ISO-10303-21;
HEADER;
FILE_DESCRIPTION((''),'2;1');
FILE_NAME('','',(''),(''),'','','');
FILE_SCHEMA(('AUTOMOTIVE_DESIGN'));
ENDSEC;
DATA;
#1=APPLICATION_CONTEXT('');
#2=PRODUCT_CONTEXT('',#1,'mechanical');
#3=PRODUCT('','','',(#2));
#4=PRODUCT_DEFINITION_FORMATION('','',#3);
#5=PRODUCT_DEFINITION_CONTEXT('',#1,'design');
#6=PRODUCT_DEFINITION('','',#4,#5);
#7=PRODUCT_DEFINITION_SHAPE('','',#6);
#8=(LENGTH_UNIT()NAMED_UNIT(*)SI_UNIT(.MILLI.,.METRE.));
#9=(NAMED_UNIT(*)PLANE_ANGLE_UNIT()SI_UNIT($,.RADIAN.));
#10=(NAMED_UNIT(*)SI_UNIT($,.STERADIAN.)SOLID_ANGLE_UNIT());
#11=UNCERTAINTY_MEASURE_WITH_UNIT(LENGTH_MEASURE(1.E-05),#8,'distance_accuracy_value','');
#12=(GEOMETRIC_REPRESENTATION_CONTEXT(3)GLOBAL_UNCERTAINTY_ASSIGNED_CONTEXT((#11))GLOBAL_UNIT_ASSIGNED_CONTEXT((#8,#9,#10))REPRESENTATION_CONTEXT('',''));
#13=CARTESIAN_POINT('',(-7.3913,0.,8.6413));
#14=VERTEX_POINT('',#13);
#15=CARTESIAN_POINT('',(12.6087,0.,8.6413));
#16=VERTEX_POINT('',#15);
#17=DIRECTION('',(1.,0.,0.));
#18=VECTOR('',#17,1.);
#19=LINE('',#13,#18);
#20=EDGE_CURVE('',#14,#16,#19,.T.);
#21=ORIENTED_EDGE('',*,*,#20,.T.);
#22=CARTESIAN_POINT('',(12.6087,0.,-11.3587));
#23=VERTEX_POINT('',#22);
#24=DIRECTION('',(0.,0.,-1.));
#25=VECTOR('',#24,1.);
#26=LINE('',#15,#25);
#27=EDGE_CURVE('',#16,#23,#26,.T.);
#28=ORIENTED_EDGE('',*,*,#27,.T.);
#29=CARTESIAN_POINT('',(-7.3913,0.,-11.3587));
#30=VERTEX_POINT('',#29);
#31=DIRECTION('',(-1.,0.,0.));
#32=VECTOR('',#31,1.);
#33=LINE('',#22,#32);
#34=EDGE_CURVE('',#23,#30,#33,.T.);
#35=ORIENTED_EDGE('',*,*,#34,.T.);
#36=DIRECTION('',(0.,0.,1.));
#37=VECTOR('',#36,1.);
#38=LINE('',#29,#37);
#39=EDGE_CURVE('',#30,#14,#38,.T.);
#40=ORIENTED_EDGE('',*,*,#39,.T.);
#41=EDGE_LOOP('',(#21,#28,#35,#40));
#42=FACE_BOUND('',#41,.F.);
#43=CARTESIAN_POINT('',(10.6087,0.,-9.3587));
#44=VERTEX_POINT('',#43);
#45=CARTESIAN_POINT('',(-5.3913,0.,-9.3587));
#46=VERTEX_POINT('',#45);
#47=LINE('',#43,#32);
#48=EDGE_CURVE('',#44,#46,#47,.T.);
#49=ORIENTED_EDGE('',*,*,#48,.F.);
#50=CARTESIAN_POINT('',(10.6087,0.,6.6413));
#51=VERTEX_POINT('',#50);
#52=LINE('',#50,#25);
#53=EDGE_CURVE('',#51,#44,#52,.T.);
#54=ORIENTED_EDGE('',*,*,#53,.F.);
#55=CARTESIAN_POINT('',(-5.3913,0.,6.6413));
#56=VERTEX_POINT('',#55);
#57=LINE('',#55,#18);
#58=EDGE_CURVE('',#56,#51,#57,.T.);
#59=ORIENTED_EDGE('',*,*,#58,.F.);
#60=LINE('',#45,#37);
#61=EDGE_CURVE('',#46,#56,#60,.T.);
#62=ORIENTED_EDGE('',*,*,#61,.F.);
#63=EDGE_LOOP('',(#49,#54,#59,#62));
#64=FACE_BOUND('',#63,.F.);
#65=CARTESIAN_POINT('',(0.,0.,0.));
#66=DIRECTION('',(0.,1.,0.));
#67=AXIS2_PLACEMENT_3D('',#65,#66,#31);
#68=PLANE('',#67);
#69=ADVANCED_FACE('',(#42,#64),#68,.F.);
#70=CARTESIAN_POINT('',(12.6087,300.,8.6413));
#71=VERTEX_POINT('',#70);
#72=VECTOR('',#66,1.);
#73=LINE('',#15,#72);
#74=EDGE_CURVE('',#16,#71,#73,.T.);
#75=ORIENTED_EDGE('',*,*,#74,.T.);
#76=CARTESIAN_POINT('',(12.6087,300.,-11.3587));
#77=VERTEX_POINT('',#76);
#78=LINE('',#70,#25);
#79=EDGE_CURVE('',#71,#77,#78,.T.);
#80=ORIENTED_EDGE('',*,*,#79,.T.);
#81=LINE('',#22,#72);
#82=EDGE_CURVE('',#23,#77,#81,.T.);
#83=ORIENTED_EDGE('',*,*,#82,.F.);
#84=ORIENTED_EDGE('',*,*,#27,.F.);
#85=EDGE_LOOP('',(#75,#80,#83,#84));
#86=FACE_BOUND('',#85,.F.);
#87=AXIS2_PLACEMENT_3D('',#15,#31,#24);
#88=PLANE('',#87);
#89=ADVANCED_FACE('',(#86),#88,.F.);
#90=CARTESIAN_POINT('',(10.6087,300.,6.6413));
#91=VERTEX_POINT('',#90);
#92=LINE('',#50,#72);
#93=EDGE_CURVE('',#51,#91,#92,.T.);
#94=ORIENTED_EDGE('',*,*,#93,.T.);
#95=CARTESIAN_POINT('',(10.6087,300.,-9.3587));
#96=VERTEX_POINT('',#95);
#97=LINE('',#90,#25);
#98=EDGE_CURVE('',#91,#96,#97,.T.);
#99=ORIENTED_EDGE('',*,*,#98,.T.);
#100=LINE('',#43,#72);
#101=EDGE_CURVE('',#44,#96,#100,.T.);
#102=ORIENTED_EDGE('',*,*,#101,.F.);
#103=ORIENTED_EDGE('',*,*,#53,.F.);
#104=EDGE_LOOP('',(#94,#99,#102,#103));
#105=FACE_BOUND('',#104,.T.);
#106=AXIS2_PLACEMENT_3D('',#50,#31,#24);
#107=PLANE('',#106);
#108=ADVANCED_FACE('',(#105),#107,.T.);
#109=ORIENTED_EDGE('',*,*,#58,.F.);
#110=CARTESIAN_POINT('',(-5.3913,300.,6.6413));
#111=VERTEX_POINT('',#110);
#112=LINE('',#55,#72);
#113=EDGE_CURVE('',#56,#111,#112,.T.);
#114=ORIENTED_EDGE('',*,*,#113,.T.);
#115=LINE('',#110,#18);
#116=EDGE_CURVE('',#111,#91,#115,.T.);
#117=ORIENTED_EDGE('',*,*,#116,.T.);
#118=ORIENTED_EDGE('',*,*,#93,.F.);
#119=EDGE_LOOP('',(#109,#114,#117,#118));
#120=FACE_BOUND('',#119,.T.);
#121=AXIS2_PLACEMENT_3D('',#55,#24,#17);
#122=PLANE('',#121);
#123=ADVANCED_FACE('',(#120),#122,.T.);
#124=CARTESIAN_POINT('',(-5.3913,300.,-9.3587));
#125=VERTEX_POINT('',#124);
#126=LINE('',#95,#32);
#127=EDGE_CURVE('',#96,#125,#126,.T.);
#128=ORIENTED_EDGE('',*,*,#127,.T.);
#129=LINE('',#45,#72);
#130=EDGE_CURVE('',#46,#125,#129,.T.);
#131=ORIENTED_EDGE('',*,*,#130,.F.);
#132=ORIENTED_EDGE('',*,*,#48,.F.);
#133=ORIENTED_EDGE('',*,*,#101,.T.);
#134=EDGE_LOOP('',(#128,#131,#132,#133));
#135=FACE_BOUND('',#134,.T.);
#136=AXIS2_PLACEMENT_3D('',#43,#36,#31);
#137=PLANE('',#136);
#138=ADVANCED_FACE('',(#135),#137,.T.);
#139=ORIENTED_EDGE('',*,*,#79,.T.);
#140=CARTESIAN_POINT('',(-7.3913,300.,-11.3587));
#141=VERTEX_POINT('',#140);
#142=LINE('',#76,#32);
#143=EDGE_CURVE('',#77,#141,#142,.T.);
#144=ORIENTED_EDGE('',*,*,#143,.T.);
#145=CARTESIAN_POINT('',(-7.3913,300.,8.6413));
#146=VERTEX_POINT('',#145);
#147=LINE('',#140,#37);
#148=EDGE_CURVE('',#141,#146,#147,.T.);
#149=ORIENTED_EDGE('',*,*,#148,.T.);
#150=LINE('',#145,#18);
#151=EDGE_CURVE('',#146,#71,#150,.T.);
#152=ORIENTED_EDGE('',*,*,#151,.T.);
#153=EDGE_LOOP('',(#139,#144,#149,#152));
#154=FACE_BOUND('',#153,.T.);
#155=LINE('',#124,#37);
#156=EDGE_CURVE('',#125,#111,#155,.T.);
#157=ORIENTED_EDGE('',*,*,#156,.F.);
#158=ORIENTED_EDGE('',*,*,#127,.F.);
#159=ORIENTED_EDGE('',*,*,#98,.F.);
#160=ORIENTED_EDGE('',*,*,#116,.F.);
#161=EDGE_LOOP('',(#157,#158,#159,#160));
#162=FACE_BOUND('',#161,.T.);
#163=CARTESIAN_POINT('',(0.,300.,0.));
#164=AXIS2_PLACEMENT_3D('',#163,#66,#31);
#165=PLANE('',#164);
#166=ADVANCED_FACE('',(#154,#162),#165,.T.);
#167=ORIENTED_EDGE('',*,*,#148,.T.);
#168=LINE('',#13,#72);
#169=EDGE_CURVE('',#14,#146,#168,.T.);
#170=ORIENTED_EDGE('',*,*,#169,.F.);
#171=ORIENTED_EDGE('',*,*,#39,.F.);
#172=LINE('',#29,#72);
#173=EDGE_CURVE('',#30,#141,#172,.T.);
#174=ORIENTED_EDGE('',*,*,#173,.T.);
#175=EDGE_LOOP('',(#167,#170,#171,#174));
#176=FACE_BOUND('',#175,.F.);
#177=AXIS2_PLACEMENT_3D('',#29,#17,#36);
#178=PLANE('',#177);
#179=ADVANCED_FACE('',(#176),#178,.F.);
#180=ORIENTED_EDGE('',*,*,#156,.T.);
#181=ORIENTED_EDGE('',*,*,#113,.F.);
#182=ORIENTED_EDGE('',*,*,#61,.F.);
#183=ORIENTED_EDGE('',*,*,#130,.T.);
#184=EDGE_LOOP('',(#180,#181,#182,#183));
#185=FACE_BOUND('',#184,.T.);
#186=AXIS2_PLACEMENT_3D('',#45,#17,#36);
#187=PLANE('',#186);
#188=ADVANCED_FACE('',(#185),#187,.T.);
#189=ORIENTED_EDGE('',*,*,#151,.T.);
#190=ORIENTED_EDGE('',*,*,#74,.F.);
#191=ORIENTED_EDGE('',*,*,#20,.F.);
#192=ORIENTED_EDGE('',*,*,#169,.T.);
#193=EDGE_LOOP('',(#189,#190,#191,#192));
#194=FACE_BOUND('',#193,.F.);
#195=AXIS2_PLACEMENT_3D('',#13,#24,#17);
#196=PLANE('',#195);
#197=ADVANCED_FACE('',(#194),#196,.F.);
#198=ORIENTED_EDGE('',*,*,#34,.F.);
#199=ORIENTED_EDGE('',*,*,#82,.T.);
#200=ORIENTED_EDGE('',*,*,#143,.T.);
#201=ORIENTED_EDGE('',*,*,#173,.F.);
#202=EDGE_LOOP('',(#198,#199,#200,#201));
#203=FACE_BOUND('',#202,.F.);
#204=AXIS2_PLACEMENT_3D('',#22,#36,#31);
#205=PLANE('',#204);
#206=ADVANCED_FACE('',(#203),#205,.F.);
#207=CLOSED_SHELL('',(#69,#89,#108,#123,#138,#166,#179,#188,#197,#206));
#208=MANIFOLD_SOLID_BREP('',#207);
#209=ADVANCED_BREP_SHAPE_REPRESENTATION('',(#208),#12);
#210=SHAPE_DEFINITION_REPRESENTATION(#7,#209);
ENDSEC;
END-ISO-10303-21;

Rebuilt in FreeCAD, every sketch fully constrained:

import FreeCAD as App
import Part
import Sketcher

V = App.Vector


def add_polygon(sketch, points):
    """Adds a closed chain of lines whose ends are joined by coincident constraints."""
    first, n = sketch.GeometryCount, len(points)
    for a, b in zip(points, points[1:] + points[:1]):
        sketch.addGeometry(Part.LineSegment(App.Vector(*a, 0), App.Vector(*b, 0)), False)
    for i in range(n):
        sketch.addConstraint(Sketcher.Constraint("Coincident", first + i, 2, first + (i + 1) % n, 1))

doc = App.newDocument("Part")
body = doc.addObject("PartDesign::Body", "Body")

sketch1 = doc.addObject("Sketcher::SketchObject", "Sketch")
body.addObject(sketch1)
sketch1.AttachmentSupport = (doc.XZ_Plane, [""])
sketch1.MapMode = "FlatFace"
add_polygon(sketch1, [(-7, -11), (-7, 9), (13, 9), (13, -11)])
add_polygon(sketch1, [(11, 7), (-5, 7), (-5, -9), (11, -9)])
sketch1.addConstraint([
    Sketcher.Constraint("Vertical", 0),
    Sketcher.Constraint("Horizontal", 1),
    Sketcher.Constraint("Vertical", 2),
    Sketcher.Constraint("Horizontal", 3),
    Sketcher.Constraint("Horizontal", 4),
    Sketcher.Constraint("Vertical", 5),
    Sketcher.Constraint("Horizontal", 6),
    Sketcher.Constraint("Vertical", 7),
    Sketcher.Constraint("Equal", 3, 0),
    Sketcher.Constraint("Equal", 6, 5),
    Sketcher.Constraint("DistanceX", 1, 1, 1, 2, 20.0),
    Sketcher.Constraint("DistanceX", 0, 2, 4, 2, 2.0),
    Sketcher.Constraint("DistanceY", 4, 2, 0, 2, 2.0),
    Sketcher.Constraint("DistanceY", 3, 2, 5, 2, 2.0),
    Sketcher.Constraint("DistanceX", 0, 2, -1, 1, 7.3913),
    Sketcher.Constraint("DistanceY", -1, 1, 0, 2, 8.6413),
])
pad1 = doc.addObject("PartDesign::Pad", "Pad")
body.addObject(pad1)
pad1.Profile = sketch1
pad1.Length = 300
pad1.Reversed = True

doc.recompute()
